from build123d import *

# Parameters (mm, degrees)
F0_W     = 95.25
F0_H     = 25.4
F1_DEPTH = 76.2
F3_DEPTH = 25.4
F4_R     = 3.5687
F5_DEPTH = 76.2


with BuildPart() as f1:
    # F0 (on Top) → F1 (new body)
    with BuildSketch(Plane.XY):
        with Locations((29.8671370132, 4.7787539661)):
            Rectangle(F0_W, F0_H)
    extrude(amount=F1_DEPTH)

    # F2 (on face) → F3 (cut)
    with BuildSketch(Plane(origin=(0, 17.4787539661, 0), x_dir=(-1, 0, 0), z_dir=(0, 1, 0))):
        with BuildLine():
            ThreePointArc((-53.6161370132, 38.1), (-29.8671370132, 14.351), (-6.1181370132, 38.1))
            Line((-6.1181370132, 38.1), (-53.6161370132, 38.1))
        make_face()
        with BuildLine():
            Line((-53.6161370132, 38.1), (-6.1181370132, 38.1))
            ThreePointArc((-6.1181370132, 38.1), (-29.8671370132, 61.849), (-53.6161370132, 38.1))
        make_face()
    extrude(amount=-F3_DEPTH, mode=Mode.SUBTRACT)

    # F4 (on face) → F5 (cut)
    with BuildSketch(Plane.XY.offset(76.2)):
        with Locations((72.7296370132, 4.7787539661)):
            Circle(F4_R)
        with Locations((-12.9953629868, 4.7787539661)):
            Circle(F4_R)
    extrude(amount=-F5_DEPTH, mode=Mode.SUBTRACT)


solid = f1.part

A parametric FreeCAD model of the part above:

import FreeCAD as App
import Part
import Sketcher
from FreeCAD import Vector
Q = App.Units.Quantity


def add_polygon(sketch, points):
    """Adds a closed chain of lines whose ends are joined by coincident constraints."""
    first, n = sketch.GeometryCount, len(points)
    for a, b in zip(points, points[1:] + points[:1]):
        sketch.addGeometry(Part.LineSegment(App.Vector(*a, 0), App.Vector(*b, 0)), False)
    for i in range(n):
        sketch.addConstraint(Sketcher.Constraint("Coincident", first + i, 2, first + (i + 1) % n, 1))

doc = App.newDocument("Part")
body = doc.addObject("PartDesign::Body", "Body")

# Sketch on XY plane
sketch1 = body.newObject("Sketcher::SketchObject", "Sketch")
sketch1.AttachmentSupport = (doc.getObject("XY_Plane"), [""])
sketch1.MapMode = "FlatFace"
add_polygon(sketch1, [(-17.757863, 17.478754), (-17.757863, -7.921246), (77.492137, -7.921246), (77.492137, 17.478754)])  # lines 0-3
sketch1.addConstraint([
    Sketcher.Constraint("Vertical", 0),
    Sketcher.Constraint("Horizontal", 1),
    Sketcher.Constraint("Vertical", 2),
    Sketcher.Constraint("Horizontal", 3),
    Sketcher.Constraint("DistanceY", 0, 2, 0, 1, Q("1 in")),
    Sketcher.Constraint("DistanceX", 1, 1, 1, 2, Q("3.75 in")),
    Sketcher.Constraint("DistanceX", 0, 2, -1, 1, 17.757863),
    Sketcher.Constraint("DistanceY", 0, 2, -1, 1, 7.921246),
])
pad1 = body.newObject("PartDesign::Pad", "Pad")
pad1.Profile = sketch1
pad1.Length = Q("3 in")

# Sketch on XZ plane
sketch2 = body.newObject("Sketcher::SketchObject", "Sketch001")
sketch2.AttachmentSupport = (doc.getObject("XZ_Plane"), [""])
sketch2.MapMode = "FlatFace"
sketch2.AttachmentOffset = App.Placement(Vector(0, 0, -17.478754), App.Rotation())
sketch2.addGeometry(Part.Circle(Vector(29.867137, 38.1, 0), Vector(0, 0, 1), 23.749), False)
sketch2.addConstraint([
    Sketcher.Constraint("Diameter", 0, Q("1.87 in")),
    Sketcher.Constraint("DistanceY", -1, 1, 0, 3, Q("1.5 in")),
    Sketcher.Constraint("DistanceX", -1, 1, 0, 3, 29.867137),
])
pocket1 = body.newObject("PartDesign::Pocket", "Pocket")
pocket1.Profile = sketch2
pocket1.Length = Q("1 in")
pocket1.Reversed = True

# Sketch on XY plane
sketch3 = body.newObject("Sketcher::SketchObject", "Sketch002")
sketch3.AttachmentSupport = (doc.getObject("XY_Plane"), [""])
sketch3.MapMode = "FlatFace"
sketch3.AttachmentOffset = App.Placement(Vector(0, 0, 3 * 25.4), App.Rotation())
sketch3.addGeometry([
    Part.Circle(Vector(72.729637, 4.778754, 0), Vector(0, 0, 1), 3.5687),
    Part.Circle(Vector(-12.995363, 4.778754, 0), Vector(0, 0, 1), 3.5687),
], False)
sketch3.addConstraint([
    Sketcher.Constraint("Equal", 0, 1),
    Sketcher.Constraint("Horizontal", 0, 3, 1, 3),
    Sketcher.Constraint("Diameter", 0, Q("0.281 in")),
    Sketcher.Constraint("DistanceX", 1, 3, 0, 3, Q("3.375 in")),
    Sketcher.Constraint("DistanceX", -1, 1, 0, 3, 72.729637),
    Sketcher.Constraint("DistanceY", -1, 1, 0, 3, 4.778754),
])
pocket2 = body.newObject("PartDesign::Pocket", "Pocket001")
pocket2.Profile = sketch3
pocket2.Length = Q("3 in")

doc.recompute()
